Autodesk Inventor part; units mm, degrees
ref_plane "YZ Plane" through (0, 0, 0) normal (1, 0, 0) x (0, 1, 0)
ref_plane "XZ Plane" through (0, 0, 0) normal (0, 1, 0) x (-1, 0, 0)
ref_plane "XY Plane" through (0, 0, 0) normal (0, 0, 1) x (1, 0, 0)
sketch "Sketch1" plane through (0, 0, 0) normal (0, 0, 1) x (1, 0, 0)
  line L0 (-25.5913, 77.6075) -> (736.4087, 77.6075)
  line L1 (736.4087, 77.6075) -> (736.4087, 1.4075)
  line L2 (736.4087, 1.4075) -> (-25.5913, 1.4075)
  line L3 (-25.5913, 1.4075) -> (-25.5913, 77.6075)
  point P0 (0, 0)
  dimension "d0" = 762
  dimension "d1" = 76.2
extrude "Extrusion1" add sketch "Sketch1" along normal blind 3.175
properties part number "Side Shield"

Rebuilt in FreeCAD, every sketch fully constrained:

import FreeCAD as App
import Part
import Sketcher

V = App.Vector
Q = App.Units.Quantity


def add_polygon(sketch, points):
    """Adds a closed chain of lines whose ends are joined by coincident constraints."""
    first, n = sketch.GeometryCount, len(points)
    for a, b in zip(points, points[1:] + points[:1]):
        sketch.addGeometry(Part.LineSegment(App.Vector(*a, 0), App.Vector(*b, 0)), False)
    for i in range(n):
        sketch.addConstraint(Sketcher.Constraint("Coincident", first + i, 2, first + (i + 1) % n, 1))

doc = App.newDocument("Part")
body = doc.addObject("PartDesign::Body", "Body")

sketch1 = body.newObject("Sketcher::SketchObject", "Sketch")
sketch1.AttachmentSupport = (doc.getObject("XY_Plane"), [""])
sketch1.MapMode = "FlatFace"
add_polygon(sketch1, [(736, 78), (-26, 78), (-26, 1), (736, 1)])
sketch1.addConstraint([
    Sketcher.Constraint("Horizontal", 0),
    Sketcher.Constraint("Vertical", 1),
    Sketcher.Constraint("Horizontal", 2),
    Sketcher.Constraint("Vertical", 3),
    Sketcher.Constraint("DistanceX", 0, 2, 0, 1, Q("30 in")),
    Sketcher.Constraint("DistanceY", 1, 2, 1, 1, Q("3 in")),
    Sketcher.Constraint("DistanceX", 0, 2, -1, 1, Q("25.5913 mm")),
    Sketcher.Constraint("DistanceY", -1, 1, 0, 2, Q("77.6075 mm")),
])
pad1 = body.newObject("PartDesign::Pad", "Pad")
pad1.Profile = sketch1
pad1.Length = Q("0.125 in")

doc.recompute()
